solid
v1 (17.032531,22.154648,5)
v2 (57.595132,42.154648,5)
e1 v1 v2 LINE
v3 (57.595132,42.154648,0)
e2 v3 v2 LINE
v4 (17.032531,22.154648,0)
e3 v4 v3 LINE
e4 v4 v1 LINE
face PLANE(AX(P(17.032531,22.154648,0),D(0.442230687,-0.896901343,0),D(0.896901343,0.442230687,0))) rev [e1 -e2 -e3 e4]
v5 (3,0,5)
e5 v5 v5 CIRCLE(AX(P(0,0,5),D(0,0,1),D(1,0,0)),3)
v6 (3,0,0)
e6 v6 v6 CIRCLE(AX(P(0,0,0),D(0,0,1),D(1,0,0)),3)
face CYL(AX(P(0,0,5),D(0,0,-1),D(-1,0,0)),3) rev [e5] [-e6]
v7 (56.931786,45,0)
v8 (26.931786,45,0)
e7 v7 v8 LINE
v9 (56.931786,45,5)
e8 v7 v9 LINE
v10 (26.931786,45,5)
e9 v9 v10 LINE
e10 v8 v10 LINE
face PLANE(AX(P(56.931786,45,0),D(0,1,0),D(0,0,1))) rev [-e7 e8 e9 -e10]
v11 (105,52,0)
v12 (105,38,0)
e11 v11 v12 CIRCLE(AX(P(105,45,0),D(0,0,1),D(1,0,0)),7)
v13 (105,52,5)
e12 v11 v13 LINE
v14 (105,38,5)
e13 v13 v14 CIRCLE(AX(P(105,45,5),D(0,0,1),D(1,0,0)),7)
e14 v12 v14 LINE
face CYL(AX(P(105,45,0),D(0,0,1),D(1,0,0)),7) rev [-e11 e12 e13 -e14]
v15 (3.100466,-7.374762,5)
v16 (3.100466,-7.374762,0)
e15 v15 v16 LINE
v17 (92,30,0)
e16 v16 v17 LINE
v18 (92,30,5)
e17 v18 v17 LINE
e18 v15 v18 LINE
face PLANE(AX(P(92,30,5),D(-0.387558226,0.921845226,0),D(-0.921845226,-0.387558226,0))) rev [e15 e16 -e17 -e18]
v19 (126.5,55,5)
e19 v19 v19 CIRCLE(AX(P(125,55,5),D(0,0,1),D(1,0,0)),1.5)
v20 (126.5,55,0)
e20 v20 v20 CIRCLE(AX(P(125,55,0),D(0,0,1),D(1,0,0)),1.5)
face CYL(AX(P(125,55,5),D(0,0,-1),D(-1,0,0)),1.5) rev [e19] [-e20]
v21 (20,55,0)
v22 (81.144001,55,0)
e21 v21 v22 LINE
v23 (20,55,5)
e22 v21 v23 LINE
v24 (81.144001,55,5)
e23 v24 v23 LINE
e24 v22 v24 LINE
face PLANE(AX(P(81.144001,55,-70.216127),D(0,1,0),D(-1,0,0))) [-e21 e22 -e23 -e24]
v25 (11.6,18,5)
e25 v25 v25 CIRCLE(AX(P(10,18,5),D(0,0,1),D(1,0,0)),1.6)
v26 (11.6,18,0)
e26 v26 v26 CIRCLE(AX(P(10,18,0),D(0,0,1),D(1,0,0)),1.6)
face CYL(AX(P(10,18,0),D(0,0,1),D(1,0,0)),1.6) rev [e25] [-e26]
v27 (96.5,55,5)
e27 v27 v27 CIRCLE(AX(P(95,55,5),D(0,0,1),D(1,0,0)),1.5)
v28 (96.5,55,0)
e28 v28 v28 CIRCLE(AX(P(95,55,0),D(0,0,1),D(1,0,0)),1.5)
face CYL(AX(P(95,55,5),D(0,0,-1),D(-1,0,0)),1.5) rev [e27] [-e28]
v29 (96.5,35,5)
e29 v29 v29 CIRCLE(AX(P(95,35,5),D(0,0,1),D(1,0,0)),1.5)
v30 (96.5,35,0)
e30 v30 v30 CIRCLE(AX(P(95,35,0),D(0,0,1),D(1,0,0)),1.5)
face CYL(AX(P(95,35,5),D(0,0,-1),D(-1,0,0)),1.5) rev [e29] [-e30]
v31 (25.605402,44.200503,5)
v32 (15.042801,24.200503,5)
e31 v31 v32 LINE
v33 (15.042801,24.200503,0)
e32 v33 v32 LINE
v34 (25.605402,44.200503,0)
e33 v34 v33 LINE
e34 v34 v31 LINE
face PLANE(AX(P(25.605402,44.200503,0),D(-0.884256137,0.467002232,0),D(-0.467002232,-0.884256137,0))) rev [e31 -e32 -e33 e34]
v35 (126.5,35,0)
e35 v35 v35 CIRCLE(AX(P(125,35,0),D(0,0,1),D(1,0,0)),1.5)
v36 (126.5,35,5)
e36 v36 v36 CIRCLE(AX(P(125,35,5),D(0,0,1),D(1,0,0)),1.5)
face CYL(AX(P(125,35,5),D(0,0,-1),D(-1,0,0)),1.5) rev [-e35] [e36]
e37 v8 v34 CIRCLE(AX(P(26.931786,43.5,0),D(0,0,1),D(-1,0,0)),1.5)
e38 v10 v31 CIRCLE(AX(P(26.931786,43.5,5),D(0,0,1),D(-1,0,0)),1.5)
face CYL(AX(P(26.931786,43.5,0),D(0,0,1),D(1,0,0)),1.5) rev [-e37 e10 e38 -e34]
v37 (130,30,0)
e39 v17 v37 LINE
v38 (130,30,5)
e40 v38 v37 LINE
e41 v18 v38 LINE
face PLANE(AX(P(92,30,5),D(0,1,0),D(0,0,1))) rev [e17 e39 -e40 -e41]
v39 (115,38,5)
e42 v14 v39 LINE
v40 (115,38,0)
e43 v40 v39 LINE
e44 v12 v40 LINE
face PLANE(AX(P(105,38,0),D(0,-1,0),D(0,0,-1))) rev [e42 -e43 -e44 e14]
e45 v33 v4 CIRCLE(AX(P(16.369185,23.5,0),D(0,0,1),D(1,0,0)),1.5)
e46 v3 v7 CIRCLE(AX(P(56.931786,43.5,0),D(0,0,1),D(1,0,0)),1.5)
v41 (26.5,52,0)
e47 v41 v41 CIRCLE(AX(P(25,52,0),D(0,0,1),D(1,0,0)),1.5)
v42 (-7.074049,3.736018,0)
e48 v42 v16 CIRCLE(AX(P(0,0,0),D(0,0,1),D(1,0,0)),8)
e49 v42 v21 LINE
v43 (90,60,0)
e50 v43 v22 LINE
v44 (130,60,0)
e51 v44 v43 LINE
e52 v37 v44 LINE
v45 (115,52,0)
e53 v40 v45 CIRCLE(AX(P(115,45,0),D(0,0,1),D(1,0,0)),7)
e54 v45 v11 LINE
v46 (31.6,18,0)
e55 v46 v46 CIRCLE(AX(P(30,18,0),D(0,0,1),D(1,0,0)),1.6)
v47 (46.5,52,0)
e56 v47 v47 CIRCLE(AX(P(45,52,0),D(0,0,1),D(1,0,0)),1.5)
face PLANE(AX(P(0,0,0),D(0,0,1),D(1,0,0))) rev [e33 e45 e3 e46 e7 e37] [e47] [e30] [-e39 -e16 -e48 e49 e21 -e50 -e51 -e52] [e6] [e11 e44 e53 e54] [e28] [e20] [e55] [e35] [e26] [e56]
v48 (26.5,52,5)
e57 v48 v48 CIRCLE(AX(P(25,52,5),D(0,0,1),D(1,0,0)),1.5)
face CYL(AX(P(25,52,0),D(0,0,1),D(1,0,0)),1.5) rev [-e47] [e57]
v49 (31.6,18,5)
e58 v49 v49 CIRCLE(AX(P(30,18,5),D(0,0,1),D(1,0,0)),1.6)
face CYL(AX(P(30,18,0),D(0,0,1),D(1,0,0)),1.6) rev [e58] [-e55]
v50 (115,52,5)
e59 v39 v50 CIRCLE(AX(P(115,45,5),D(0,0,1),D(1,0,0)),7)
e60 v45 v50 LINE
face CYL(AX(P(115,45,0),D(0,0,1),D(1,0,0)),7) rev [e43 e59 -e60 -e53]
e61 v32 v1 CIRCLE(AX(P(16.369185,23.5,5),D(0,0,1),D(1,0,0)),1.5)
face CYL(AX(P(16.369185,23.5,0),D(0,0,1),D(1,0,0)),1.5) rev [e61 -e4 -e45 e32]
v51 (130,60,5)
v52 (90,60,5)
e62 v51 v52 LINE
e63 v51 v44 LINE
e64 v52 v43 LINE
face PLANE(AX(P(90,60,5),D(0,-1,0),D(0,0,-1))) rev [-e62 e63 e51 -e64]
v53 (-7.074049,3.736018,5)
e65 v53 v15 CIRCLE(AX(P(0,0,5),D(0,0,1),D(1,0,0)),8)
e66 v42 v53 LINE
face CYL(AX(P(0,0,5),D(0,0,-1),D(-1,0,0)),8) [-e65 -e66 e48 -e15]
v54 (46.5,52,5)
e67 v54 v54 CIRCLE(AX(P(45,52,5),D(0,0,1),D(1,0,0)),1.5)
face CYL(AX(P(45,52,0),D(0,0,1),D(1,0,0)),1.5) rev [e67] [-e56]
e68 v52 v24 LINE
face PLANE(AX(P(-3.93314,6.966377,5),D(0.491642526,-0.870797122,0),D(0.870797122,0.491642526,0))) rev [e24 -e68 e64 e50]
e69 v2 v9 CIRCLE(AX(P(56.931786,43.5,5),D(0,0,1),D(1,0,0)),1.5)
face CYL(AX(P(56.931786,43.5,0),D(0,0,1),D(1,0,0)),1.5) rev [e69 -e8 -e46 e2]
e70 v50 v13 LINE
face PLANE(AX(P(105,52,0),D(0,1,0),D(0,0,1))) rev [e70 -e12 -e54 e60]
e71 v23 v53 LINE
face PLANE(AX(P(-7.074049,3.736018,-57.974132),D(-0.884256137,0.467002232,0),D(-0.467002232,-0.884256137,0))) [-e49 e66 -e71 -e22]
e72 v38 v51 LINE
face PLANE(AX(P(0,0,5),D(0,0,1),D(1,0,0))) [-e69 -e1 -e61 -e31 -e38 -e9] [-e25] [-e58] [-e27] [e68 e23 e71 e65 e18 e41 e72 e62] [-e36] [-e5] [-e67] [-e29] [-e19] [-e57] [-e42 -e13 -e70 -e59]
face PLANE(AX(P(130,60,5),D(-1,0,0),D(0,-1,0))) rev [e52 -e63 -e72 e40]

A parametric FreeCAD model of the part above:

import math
import FreeCAD as App
import Part
import Sketcher

V = App.Vector

doc = App.newDocument("Part")
body = doc.addObject("PartDesign::Body", "Body")

# Sketch on XY plane
sketch1 = body.newObject("Sketcher::SketchObject", "Sketch")
sketch1.AttachmentSupport = (doc.getObject("XY_Plane"), [""])
sketch1.MapMode = "FlatFace"
sketch1.addGeometry([
    Part.LineSegment(V(90, 60, 0), V(-3.93314, 6.966377, 0)),  # 0
    Part.ArcOfCircle(Part.Circle(V(0, 0, 0), V(0, 0, 1), 8), math.radians(119.448597), math.radians(292.80265)),  # 1
    Part.LineSegment(V(3.100466, -7.374762, 0), V(92, 30, 0)),  # 2
    Part.LineSegment(V(92, 30, 0), V(130, 30, 0)),  # 3
    Part.LineSegment(V(130, 30, 0), V(130, 60, 0)),  # 4
    Part.LineSegment(V(130, 60, 0), V(90, 60, 0)),  # 5
    Part.Circle(V(0, 0, 0), V(0, 0, 1), 3),  # 6
    Part.Circle(V(125, 35, 0), V(0, 0, 1), 1.5),  # 7
    Part.Circle(V(95, 35, 0), V(0, 0, 1), 1.5),  # 8
    Part.Circle(V(125, 55, 0), V(0, 0, 1), 1.5),  # 9
    Part.Circle(V(95, 55, 0), V(0, 0, 1), 1.5),  # 10
], False)
sketch1.addConstraint([
    Sketcher.Constraint("Tangent", 0, 2, 1, 1),
    Sketcher.Constraint("Tangent", 1, 2, 2, 1),
    Sketcher.Constraint("Coincident", 2, 2, 3, 1),
    Sketcher.Constraint("Coincident", 3, 2, 4, 1),
    Sketcher.Constraint("Coincident", 4, 2, 5, 1),
    Sketcher.Constraint("Coincident", 5, 2, 0, 1),
    Sketcher.Constraint("Horizontal", 3),
    Sketcher.Constraint("Vertical", 4),
    Sketcher.Constraint("Horizontal", 5),
    Sketcher.Constraint("Coincident", 1, 3, -1, 1),
    Sketcher.Constraint("Coincident", 6, 3, -1, 1),
    Sketcher.Constraint("Equal", 7, 8),
    Sketcher.Constraint("Equal", 8, 9),
    Sketcher.Constraint("Equal", 9, 10),
    Sketcher.Constraint("Horizontal", 7, 3, 8, 3),
    Sketcher.Constraint("Horizontal", 9, 3, 10, 3),
    Sketcher.Constraint("Vertical", 7, 3, 9, 3),
    Sketcher.Constraint("Vertical", 8, 3, 10, 3),
    Sketcher.Constraint("Diameter", 6, 6.0),
    Sketcher.Constraint("Diameter", 7, 3.0),
    Sketcher.Constraint("Radius", 1, 8.0),
    Sketcher.Constraint("DistanceX", 3, 1, 3, 2, 38.0),
    Sketcher.Constraint("DistanceX", 5, 2, 5, 1, 40.0),
    Sketcher.Constraint("DistanceY", 4, 1, 4, 2, 30.0),
    Sketcher.Constraint("DistanceX", -1, 1, 7, 3, 125.0),
    Sketcher.Constraint("DistanceY", -1, 1, 7, 3, 35.0),
    Sketcher.Constraint("DistanceX", -1, 1, 8, 3, 95.0),
    Sketcher.Constraint("DistanceY", -1, 1, 9, 3, 55.0),
    Sketcher.Constraint("DistanceX", -1, 1, 2, 2, 92.0),
    Sketcher.Constraint("DistanceY", -1, 1, 2, 2, 30.0),
])
pad1 = body.newObject("PartDesign::Pad", "Pad")
pad1.Profile = sketch1
pad1.Length = 5

# Sketch on XY plane
sketch2 = body.newObject("Sketcher::SketchObject", "Sketch001")
sketch2.AttachmentSupport = (doc.getObject("XY_Plane"), [""])
sketch2.MapMode = "FlatFace"
sketch2.AttachmentOffset = App.Placement(V(0, 0, 5), App.Rotation())
sketch2.addGeometry([
    Part.LineSegment(V(81.144001, 55, 0), V(20, 55, 0)),
    Part.LineSegment(V(20, 55, 0), V(20, 20.478766, 0)),
    Part.LineSegment(V(20, 20.478766, 0), V(81.144001, 55, 0)),
], False)
sketch2.addConstraint([
    Sketcher.Constraint("Coincident", 0, 2, 1, 1),
    Sketcher.Constraint("Coincident", 1, 2, 2, 1),
    Sketcher.Constraint("Coincident", 2, 2, 0, 1),
    Sketcher.Constraint("Horizontal", 0),
    Sketcher.Constraint("Vertical", 1),
    Sketcher.Constraint("DistanceX", -1, 1, 0, 2, 20.0),
    Sketcher.Constraint("DistanceY", -1, 1, 0, 2, 55.0),
    Sketcher.Constraint("DistanceX", 0, 2, 0, 1, 61.144001),
    Sketcher.Constraint("DistanceY", 1, 2, 1, 1, 34.521234),
])
pad2 = body.newObject("PartDesign::Pad", "Pad001")
pad2.Profile = sketch2
pad2.Length = 5
pad2.Reversed = True

# Sketch on XY plane
sketch3 = body.newObject("Sketcher::SketchObject", "Sketch002")
sketch3.AttachmentSupport = (doc.getObject("XY_Plane"), [""])
sketch3.MapMode = "FlatFace"
sketch3.AttachmentOffset = App.Placement(V(0, 0, 5), App.Rotation())
sketch3.addGeometry([
    Part.Circle(V(25, 52, 0), V(0, 0, 1), 1.5),
    Part.Circle(V(45, 52, 0), V(0, 0, 1), 1.5),
], False)
sketch3.addConstraint([
    Sketcher.Constraint("Equal", 0, 1),
    Sketcher.Constraint("Horizontal", 0, 3, 1, 3),
    Sketcher.Constraint("Diameter", 0, 3.0),
    Sketcher.Constraint("DistanceX", -1, 1, 0, 3, 25.0),
    Sketcher.Constraint("DistanceY", -1, 1, 0, 3, 52.0),
    Sketcher.Constraint("DistanceX", -1, 1, 1, 3, 45.0),
])
pocket1 = body.newObject("PartDesign::Pocket", "Pocket")
pocket1.Profile = sketch3
pocket1.Type = "ThroughAll"

# Sketch on XY plane
sketch4 = body.newObject("Sketcher::SketchObject", "Sketch003")
sketch4.AttachmentSupport = (doc.getObject("XY_Plane"), [""])
sketch4.MapMode = "FlatFace"
sketch4.addGeometry([
    Part.LineSegment(V(20, 55, 0), V(-7.074049, 3.736018, 0)),
    Part.ArcOfCircle(Part.Circle(V(0, 0, 0), V(0, 0, 1), 8), math.radians(119.448597), math.radians(152.16012)),
    Part.LineSegment(V(-3.93314, 6.966377, 0), V(20, 20.478766, 0)),
    Part.LineSegment(V(20, 20.478766, 0), V(20, 55, 0)),
], False)
sketch4.addConstraint([
    Sketcher.Constraint("Tangent", 0, 2, 1, 2),
    Sketcher.Constraint("Tangent", 1, 1, 2, 1),
    Sketcher.Constraint("Coincident", 2, 2, 3, 1),
    Sketcher.Constraint("Coincident", 3, 2, 0, 1),
    Sketcher.Constraint("Vertical", 3),
    Sketcher.Constraint("Coincident", 1, 3, -1, 1),
    Sketcher.Constraint("Radius", 1, 8.0),
    Sketcher.Constraint("DistanceX", -1, 1, 2, 2, 20.0),
    Sketcher.Constraint("DistanceY", -1, 1, 3, 2, 55.0),
    Sketcher.Constraint("DistanceY", 3, 1, 3, 2, 34.521234),
])
pad3 = body.newObject("PartDesign::Pad", "Pad002")
pad3.Profile = sketch4
pad3.Length = 5

# Sketch on XY plane
sketch5 = body.newObject("Sketcher::SketchObject", "Sketch004")
sketch5.AttachmentSupport = (doc.getObject("XY_Plane"), [""])
sketch5.MapMode = "FlatFace"
sketch5.AttachmentOffset = App.Placement(V(0, 0, 5), App.Rotation())
sketch5.addGeometry([
    Part.LineSegment(V(115, 52, 0), V(105, 52, 0)),  # 0
    Part.ArcOfCircle(Part.Circle(V(105, 45, 0), V(0, 0, 1), 7), math.radians(90), math.radians(270)),  # 1
    Part.LineSegment(V(105, 38, 0), V(115, 38, 0)),  # 2
    Part.ArcOfCircle(Part.Circle(V(115, 45, 0), V(0, 0, 1), 7), math.radians(-90), math.radians(90)),  # 3
    Part.LineSegment(V(25.605402, 44.200503, 0), V(15.042801, 24.200503, 0)),  # 4
    Part.ArcOfCircle(Part.Circle(V(16.369185, 23.5, 0), V(0, 0, 1), 1.5), math.radians(152.16012), math.radians(296.246295)),  # 5
    Part.LineSegment(V(17.032531, 22.154648, 0), V(57.595132, 42.154648, 0)),  # 6
    Part.ArcOfCircle(Part.Circle(V(56.931786, 43.5, 0), V(0, 0, 1), 1.5), math.radians(-63.753705), math.radians(90)),  # 7
    Part.LineSegment(V(56.931786, 45, 0), V(26.931786, 45, 0)),  # 8
    Part.ArcOfCircle(Part.Circle(V(26.931786, 43.5, 0), V(0, 0, 1), 1.5), math.radians(90), math.radians(152.16012)),  # 9
], False)
sketch5.addConstraint([
    Sketcher.Constraint("Tangent", 0, 2, 1, 1),
    Sketcher.Constraint("Tangent", 1, 2, 2, 1),
    Sketcher.Constraint("Tangent", 2, 2, 3, 1),
    Sketcher.Constraint("Tangent", 3, 2, 0, 1),
    Sketcher.Constraint("Tangent", 4, 2, 5, 1),
    Sketcher.Constraint("Tangent", 5, 2, 6, 1),
    Sketcher.Constraint("Tangent", 6, 2, 7, 1),
    Sketcher.Constraint("Tangent", 7, 2, 8, 1),
    Sketcher.Constraint("Tangent", 8, 2, 9, 1),
    Sketcher.Constraint("Tangent", 9, 2, 4, 1),
    Sketcher.Constraint("Horizontal", 0),
    Sketcher.Constraint("Horizontal", 2),
    Sketcher.Constraint("Horizontal", 8),
    Sketcher.Constraint("Equal", 5, 7),
    Sketcher.Constraint("Equal", 7, 9),
    Sketcher.Constraint("Horizontal", 3, 3, 7, 2),
    Sketcher.Constraint("Radius", 1, 7.0),
    Sketcher.Constraint("Radius", 5, 1.5),
    Sketcher.Constraint("DistanceX", 0, 2, 0, 1, 10.0),
    Sketcher.Constraint("DistanceX", 8, 2, 8, 1, 30.0),
    Sketcher.Constraint("DistanceX", -1, 1, 1, 3, 105.0),
    Sketcher.Constraint("DistanceY", -1, 1, 1, 3, 45.0),
    Sketcher.Constraint("DistanceY", 5, 3, 7, 3, 20.0),
    Sketcher.Constraint("DistanceX", -1, 1, 4, 2, 15.042801),
    Sketcher.Constraint("DistanceX", -1, 1, 9, 2, 25.605402),
])
pocket2 = body.newObject("PartDesign::Pocket", "Pocket001")
pocket2.Profile = sketch5
pocket2.Type = "ThroughAll"

# Sketch on XY plane
sketch6 = body.newObject("Sketcher::SketchObject", "Sketch005")
sketch6.AttachmentSupport = (doc.getObject("XY_Plane"), [""])
sketch6.MapMode = "FlatFace"
sketch6.AttachmentOffset = App.Placement(V(0, 0, 5), App.Rotation())
sketch6.addGeometry([
    Part.Circle(V(10, 18, 0), V(0, 0, 1), 1.6),
    Part.Circle(V(30, 18, 0), V(0, 0, 1), 1.6),
], False)
sketch6.addConstraint([
    Sketcher.Constraint("Equal", 0, 1),
    Sketcher.Constraint("Horizontal", 0, 3, 1, 3),
    Sketcher.Constraint("Diameter", 0, 3.2),
    Sketcher.Constraint("DistanceX", -1, 1, 0, 3, 10.0),
    Sketcher.Constraint("DistanceY", -1, 1, 0, 3, 18.0),
    Sketcher.Constraint("DistanceX", -1, 1, 1, 3, 30.0),
])
pocket3 = body.newObject("PartDesign::Pocket", "Pocket002")
pocket3.Profile = sketch6
pocket3.Type = "ThroughAll"

doc.recompute()
